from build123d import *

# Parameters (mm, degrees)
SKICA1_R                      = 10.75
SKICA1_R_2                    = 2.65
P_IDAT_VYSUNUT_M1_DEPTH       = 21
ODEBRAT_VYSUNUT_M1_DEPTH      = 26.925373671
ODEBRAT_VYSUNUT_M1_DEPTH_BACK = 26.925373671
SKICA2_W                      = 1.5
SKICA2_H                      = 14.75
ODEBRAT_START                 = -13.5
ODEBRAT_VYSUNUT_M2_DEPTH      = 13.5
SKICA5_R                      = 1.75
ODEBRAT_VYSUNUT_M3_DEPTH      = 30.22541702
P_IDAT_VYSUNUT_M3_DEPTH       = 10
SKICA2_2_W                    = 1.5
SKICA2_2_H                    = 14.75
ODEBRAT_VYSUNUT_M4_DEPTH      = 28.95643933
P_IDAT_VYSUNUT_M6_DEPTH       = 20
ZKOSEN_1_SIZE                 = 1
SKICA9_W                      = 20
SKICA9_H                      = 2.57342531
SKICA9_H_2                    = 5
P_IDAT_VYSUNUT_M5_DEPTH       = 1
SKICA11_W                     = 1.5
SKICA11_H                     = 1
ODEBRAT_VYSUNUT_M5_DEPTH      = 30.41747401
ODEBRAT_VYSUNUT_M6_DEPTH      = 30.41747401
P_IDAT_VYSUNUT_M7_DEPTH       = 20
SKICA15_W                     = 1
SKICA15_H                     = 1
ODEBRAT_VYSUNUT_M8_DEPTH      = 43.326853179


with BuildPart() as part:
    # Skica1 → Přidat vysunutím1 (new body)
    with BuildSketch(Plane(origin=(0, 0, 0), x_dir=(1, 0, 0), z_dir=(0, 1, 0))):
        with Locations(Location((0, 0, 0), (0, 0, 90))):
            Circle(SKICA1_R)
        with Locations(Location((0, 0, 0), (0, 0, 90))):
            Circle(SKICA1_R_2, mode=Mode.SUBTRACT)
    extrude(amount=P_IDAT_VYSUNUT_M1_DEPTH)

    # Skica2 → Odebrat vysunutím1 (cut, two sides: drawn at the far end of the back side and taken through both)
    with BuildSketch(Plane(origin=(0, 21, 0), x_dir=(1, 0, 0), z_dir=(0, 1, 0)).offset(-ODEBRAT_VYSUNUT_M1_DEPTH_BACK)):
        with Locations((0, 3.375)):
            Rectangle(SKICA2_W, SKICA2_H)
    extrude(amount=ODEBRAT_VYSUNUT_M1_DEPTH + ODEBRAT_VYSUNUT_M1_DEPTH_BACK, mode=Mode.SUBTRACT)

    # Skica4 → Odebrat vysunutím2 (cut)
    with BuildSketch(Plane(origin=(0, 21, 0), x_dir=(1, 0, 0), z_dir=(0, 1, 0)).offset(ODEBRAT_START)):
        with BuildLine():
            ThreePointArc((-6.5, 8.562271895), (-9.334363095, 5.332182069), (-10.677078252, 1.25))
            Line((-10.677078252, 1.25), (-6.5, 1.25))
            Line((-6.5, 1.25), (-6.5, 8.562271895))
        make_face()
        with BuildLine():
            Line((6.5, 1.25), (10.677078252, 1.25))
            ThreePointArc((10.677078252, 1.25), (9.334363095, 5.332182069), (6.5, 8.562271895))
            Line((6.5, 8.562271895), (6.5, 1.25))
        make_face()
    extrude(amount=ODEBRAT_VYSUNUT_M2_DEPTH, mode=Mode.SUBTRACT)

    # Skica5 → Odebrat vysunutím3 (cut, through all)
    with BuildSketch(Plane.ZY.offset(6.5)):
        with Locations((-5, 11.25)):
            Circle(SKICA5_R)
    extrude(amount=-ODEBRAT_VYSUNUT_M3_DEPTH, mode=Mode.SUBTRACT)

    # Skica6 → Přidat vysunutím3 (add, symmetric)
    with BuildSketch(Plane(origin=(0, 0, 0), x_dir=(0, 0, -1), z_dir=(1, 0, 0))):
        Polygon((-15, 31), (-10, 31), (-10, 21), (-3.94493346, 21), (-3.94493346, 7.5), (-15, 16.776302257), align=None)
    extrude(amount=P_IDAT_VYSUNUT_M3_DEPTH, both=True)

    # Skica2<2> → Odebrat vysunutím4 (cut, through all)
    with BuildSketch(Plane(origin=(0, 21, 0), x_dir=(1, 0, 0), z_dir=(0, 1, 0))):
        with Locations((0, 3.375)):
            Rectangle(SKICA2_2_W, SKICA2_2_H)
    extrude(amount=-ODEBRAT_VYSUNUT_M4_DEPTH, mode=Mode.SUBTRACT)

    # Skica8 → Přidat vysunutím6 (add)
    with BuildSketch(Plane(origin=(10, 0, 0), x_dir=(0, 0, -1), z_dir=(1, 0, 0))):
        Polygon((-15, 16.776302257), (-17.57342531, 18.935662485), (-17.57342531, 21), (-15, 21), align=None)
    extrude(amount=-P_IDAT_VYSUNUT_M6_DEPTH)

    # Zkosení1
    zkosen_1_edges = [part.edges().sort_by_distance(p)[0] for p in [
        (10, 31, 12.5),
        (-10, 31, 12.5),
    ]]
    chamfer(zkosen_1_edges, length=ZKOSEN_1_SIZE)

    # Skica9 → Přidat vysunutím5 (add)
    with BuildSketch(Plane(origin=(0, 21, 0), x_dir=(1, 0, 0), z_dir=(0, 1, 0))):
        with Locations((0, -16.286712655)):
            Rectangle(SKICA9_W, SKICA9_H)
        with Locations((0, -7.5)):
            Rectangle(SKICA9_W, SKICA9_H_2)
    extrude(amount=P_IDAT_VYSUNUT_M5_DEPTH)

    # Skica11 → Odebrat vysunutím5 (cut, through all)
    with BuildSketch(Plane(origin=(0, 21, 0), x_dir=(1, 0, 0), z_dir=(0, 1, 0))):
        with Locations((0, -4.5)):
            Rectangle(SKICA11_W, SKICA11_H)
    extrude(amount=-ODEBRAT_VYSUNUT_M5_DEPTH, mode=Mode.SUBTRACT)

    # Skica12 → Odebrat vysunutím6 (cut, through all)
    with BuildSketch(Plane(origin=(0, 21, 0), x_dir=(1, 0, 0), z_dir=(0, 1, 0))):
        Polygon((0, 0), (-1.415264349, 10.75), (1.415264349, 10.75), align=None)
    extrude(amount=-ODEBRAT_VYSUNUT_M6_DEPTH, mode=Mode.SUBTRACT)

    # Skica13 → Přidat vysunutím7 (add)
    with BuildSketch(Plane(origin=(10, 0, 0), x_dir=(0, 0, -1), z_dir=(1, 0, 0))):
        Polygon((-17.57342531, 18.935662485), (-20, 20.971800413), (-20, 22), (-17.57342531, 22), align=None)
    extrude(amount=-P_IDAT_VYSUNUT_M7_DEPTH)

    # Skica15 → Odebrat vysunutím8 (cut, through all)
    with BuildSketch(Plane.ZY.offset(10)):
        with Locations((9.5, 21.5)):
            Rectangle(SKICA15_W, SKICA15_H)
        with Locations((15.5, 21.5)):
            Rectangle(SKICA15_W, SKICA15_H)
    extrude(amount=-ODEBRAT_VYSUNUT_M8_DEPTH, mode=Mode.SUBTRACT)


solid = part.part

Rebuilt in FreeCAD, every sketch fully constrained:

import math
import FreeCAD as App
import Part
import Sketcher
from FreeCAD import Vector
Q = App.Units.Quantity


def edges_at(feature, points):
    """Names of the edges that pass closest to the given points."""
    edges = feature.Shape.Edges
    near = lambda p: min(range(len(edges)), key=lambda i: edges[i].distToShape(Part.Vertex(*p))[0])
    return sorted({f"Edge{near(p) + 1}" for p in points})

doc = App.newDocument("Part")
body = doc.addObject("PartDesign::Body", "Body")

sketch1 = body.newObject("Sketcher::SketchObject", "Sketch")
sketch1.AttachmentSupport = (doc.getObject("XZ_Plane"), [""])
sketch1.MapMode = "FlatFace"
sketch1.addGeometry(Part.Circle(Vector(0, 0, 0), Vector(0, 0, 1), 10.75), False)
sketch1.addGeometry(Part.Circle(Vector(0, 0, 0), Vector(0, 0, 1), 2.65), False)
sketch1.addConstraint(Sketcher.Constraint("Coincident", 0, 3, -1, 1))
sketch1.addConstraint(Sketcher.Constraint("Coincident", 1, 3, -1, 1))
sketch1.addConstraint(Sketcher.Constraint("Diameter", 0, Q("21.5 mm")))
sketch1.addConstraint(Sketcher.Constraint("Diameter", 1, Q("5.3 mm")))
pad1 = body.newObject("PartDesign::Pad", "Pad")
pad1.Profile = sketch1
pad1.Length = 21
pad1.Reversed = True

sketch2 = body.newObject("Sketcher::SketchObject", "Sketch001")
sketch2.AttachmentSupport = (doc.getObject("XZ_Plane"), [""])
sketch2.MapMode = "FlatFace"
sketch2.AttachmentOffset = App.Placement(Vector(0, 0, -21), App.Rotation())
sketch2.addGeometry(Part.LineSegment(Vector(-0.75, -10.75, 0), Vector(-0.75, 4, 0)), False)
sketch2.addGeometry(Part.LineSegment(Vector(-0.75, 4, 0), Vector(0.75, 4, 0)), False)
sketch2.addGeometry(Part.LineSegment(Vector(0.75, 4, 0), Vector(0.75, -10.75, 0)), False)
sketch2.addGeometry(Part.LineSegment(Vector(0.75, -10.75, 0), Vector(-0.75, -10.75, 0)), False)
sketch2.addConstraint(Sketcher.Constraint("Coincident", 0, 2, 1, 1))
sketch2.addConstraint(Sketcher.Constraint("Coincident", 1, 2, 2, 1))
sketch2.addConstraint(Sketcher.Constraint("Coincident", 2, 2, 3, 1))
sketch2.addConstraint(Sketcher.Constraint("Coincident", 3, 2, 0, 1))
sketch2.addConstraint(Sketcher.Constraint("Vertical", 0))
sketch2.addConstraint(Sketcher.Constraint("Horizontal", 1))
sketch2.addConstraint(Sketcher.Constraint("Vertical", 2))
sketch2.addConstraint(Sketcher.Constraint("Horizontal", 3))
sketch2.addConstraint(Sketcher.Constraint("DistanceX", 1, 1, 1, 2, Q("1.5 mm")))
sketch2.addConstraint(Sketcher.Constraint("DistanceY", -1, 1, 0, 2, Q("4 mm")))
sketch2.addConstraint(Sketcher.Constraint("DistanceY", 0, 1, 0, 2, Q("14.75 mm")))
sketch2.addConstraint(Sketcher.Constraint("DistanceX", 0, 2, -1, 1, Q("0.75 mm")))
pocket1 = body.newObject("PartDesign::Pocket", "Pocket")
pocket1.Profile = sketch2
pocket1.Type = "ThroughAll"
pocket1.Midplane = True

sketch3 = body.newObject("Sketcher::SketchObject", "Sketch002")
sketch3.AttachmentSupport = (doc.getObject("XZ_Plane"), [""])
sketch3.MapMode = "FlatFace"
sketch3.AttachmentOffset = App.Placement(Vector(0, 0, -7.5), App.Rotation())
sketch3.addGeometry(Part.ArcOfCircle(Part.Circle(Vector(0, 0, 0), Vector(0, 0, 1), 10.75), math.radians(-173.322595), math.radians(-127.203744)), False)
sketch3.addGeometry(Part.LineSegment(Vector(-10.677078, -1.25, 0), Vector(-6.5, -1.25, 0)), False)
sketch3.addGeometry(Part.LineSegment(Vector(-6.5, -1.25, 0), Vector(-6.5, -8.562272, 0)), False)
sketch3.addGeometry(Part.LineSegment(Vector(6.5, -1.25, 0), Vector(10.677078, -1.25, 0)), False)
sketch3.addGeometry(Part.ArcOfCircle(Part.Circle(Vector(0, 0, 0), Vector(0, 0, 1), 10.75), math.radians(-52.796256), math.radians(-6.677405)), False)
sketch3.addGeometry(Part.LineSegment(Vector(6.5, -8.562272, 0), Vector(6.5, -1.25, 0)), False)
sketch3.addConstraint(Sketcher.Constraint("Coincident", 0, 1, 1, 1))
sketch3.addConstraint(Sketcher.Constraint("Coincident", 1, 2, 2, 1))
sketch3.addConstraint(Sketcher.Constraint("Coincident", 2, 2, 0, 2))
sketch3.addConstraint(Sketcher.Constraint("Coincident", 3, 2, 4, 2))
sketch3.addConstraint(Sketcher.Constraint("Coincident", 4, 1, 5, 1))
sketch3.addConstraint(Sketcher.Constraint("Coincident", 5, 2, 3, 1))
sketch3.addConstraint(Sketcher.Constraint("Horizontal", 1))
sketch3.addConstraint(Sketcher.Constraint("Vertical", 2))
sketch3.addConstraint(Sketcher.Constraint("Horizontal", 3))
sketch3.addConstraint(Sketcher.Constraint("Vertical", 5))
sketch3.addConstraint(Sketcher.Constraint("Coincident", 0, 3, -1, 1))
sketch3.addConstraint(Sketcher.Constraint("Coincident", 4, 3, -1, 1))
sketch3.addConstraint(Sketcher.Constraint("Equal", 0, 4))
sketch3.addConstraint(Sketcher.Constraint("Symmetric", 1, 2, 5, 2, -2))
sketch3.addConstraint(Sketcher.Constraint("Radius", 0, Q("10.75 mm")))
sketch3.addConstraint(Sketcher.Constraint("DistanceX", 2, 2, 4, 1, Q("13 mm")))
sketch3.addConstraint(Sketcher.Constraint("DistanceY", 0, 1, -1, 1, Q("1.25 mm")))
pocket2 = body.newObject("PartDesign::Pocket", "Pocket001")
pocket2.Profile = sketch3
pocket2.Length = 13.5

sketch4 = body.newObject("Sketcher::SketchObject", "Sketch003")
sketch4.AttachmentSupport = (doc.getObject("YZ_Plane"), [""])
sketch4.MapMode = "FlatFace"
sketch4.AttachmentOffset = App.Placement(Vector(0, 0, -6.5), App.Rotation())
sketch4.addGeometry(Part.Circle(Vector(11.25, -5, 0), Vector(0, 0, 1), 1.75), False)
sketch4.addConstraint(Sketcher.Constraint("Diameter", 0, Q("3.5 mm")))
sketch4.addConstraint(Sketcher.Constraint("DistanceY", 0, 3, -1, 1, Q("5 mm")))
sketch4.addConstraint(Sketcher.Constraint("DistanceX", -1, 1, 0, 3, Q("11.25 mm")))
pocket3 = body.newObject("PartDesign::Pocket", "Pocket002")
pocket3.Profile = sketch4
pocket3.Type = "ThroughAll"
pocket3.Reversed = True

sketch5 = body.newObject("Sketcher::SketchObject", "Sketch004")
sketch5.AttachmentSupport = (doc.getObject("YZ_Plane"), [""])
sketch5.MapMode = "FlatFace"
sketch5.addGeometry(Part.LineSegment(Vector(31, 10, 0), Vector(31, 15, 0)), False)
sketch5.addGeometry(Part.LineSegment(Vector(31, 15, 0), Vector(16.776302, 15, 0)), False)
sketch5.addGeometry(Part.LineSegment(Vector(16.776302, 15, 0), Vector(7.5, 3.944933, 0)), False)
sketch5.addGeometry(Part.LineSegment(Vector(7.5, 3.944933, 0), Vector(21, 3.944933, 0)), False)
sketch5.addGeometry(Part.LineSegment(Vector(21, 3.944933, 0), Vector(21, 10, 0)), False)
sketch5.addGeometry(Part.LineSegment(Vector(21, 10, 0), Vector(31, 10, 0)), False)
sketch5.addConstraint(Sketcher.Constraint("Coincident", 0, 2, 1, 1))
sketch5.addConstraint(Sketcher.Constraint("Coincident", 1, 2, 2, 1))
sketch5.addConstraint(Sketcher.Constraint("Coincident", 2, 2, 3, 1))
sketch5.addConstraint(Sketcher.Constraint("Coincident", 3, 2, 4, 1))
sketch5.addConstraint(Sketcher.Constraint("Coincident", 4, 2, 5, 1))
sketch5.addConstraint(Sketcher.Constraint("Coincident", 5, 2, 0, 1))
sketch5.addConstraint(Sketcher.Constraint("Vertical", 0))
sketch5.addConstraint(Sketcher.Constraint("Horizontal", 1))
sketch5.addConstraint(Sketcher.Constraint("Horizontal", 3))
sketch5.addConstraint(Sketcher.Constraint("Vertical", 4))
sketch5.addConstraint(Sketcher.Constraint("Horizontal", 5))
sketch5.addConstraint(Sketcher.Constraint("DistanceX", 5, 1, 5, 2, Q("10 mm")))
sketch5.addConstraint(Sketcher.Constraint("DistanceY", 0, 1, 0, 2, Q("5 mm")))
sketch5.addConstraint(Sketcher.Constraint("Angle", 2, Q("-130 deg")))
sketch5.addConstraint(Sketcher.Constraint("DistanceX", 3, 1, 3, 2, Q("13.5 mm")))
sketch5.addConstraint(Sketcher.Constraint("DistanceX", -1, 1, 0, 2, Q("31 mm")))
sketch5.addConstraint(Sketcher.Constraint("DistanceY", -1, 1, 0, 2, Q("15 mm")))
sketch5.addConstraint(Sketcher.Constraint("DistanceX", 1, 2, 1, 1, Q("14.223698 mm")))
pad2 = body.newObject("PartDesign::Pad", "Pad001")
pad2.Profile = sketch5
pad2.Length = 20
pad2.Midplane = True

sketch6 = body.newObject("Sketcher::SketchObject", "Sketch005")
sketch6.AttachmentSupport = (doc.getObject("XZ_Plane"), [""])
sketch6.MapMode = "FlatFace"
sketch6.AttachmentOffset = App.Placement(Vector(0, 0, -21), App.Rotation())
sketch6.addGeometry(Part.LineSegment(Vector(-0.75, -10.75, 0), Vector(-0.75, 4, 0)), False)
sketch6.addGeometry(Part.LineSegment(Vector(-0.75, 4, 0), Vector(0.75, 4, 0)), False)
sketch6.addGeometry(Part.LineSegment(Vector(0.75, 4, 0), Vector(0.75, -10.75, 0)), False)
sketch6.addGeometry(Part.LineSegment(Vector(0.75, -10.75, 0), Vector(-0.75, -10.75, 0)), False)
sketch6.addConstraint(Sketcher.Constraint("Coincident", 0, 2, 1, 1))
sketch6.addConstraint(Sketcher.Constraint("Coincident", 1, 2, 2, 1))
sketch6.addConstraint(Sketcher.Constraint("Coincident", 2, 2, 3, 1))
sketch6.addConstraint(Sketcher.Constraint("Coincident", 3, 2, 0, 1))
sketch6.addConstraint(Sketcher.Constraint("Vertical", 0))
sketch6.addConstraint(Sketcher.Constraint("Horizontal", 1))
sketch6.addConstraint(Sketcher.Constraint("Vertical", 2))
sketch6.addConstraint(Sketcher.Constraint("Horizontal", 3))
sketch6.addConstraint(Sketcher.Constraint("DistanceX", 1, 1, 1, 2, Q("1.5 mm")))
sketch6.addConstraint(Sketcher.Constraint("DistanceY", -1, 1, 0, 2, Q("4 mm")))
sketch6.addConstraint(Sketcher.Constraint("DistanceY", 0, 1, 0, 2, Q("14.75 mm")))
sketch6.addConstraint(Sketcher.Constraint("DistanceX", 0, 2, -1, 1, Q("0.75 mm")))
pocket4 = body.newObject("PartDesign::Pocket", "Pocket003")
pocket4.Profile = sketch6
pocket4.Type = "ThroughAll"
pocket4.Reversed = True

sketch7 = body.newObject("Sketcher::SketchObject", "Sketch006")
sketch7.AttachmentSupport = (doc.getObject("YZ_Plane"), [""])
sketch7.MapMode = "FlatFace"
sketch7.AttachmentOffset = App.Placement(Vector(0, 0, 10), App.Rotation())
sketch7.addGeometry(Part.LineSegment(Vector(18.935662, 17.573425, 0), Vector(16.776302, 15, 0)), False)
sketch7.addGeometry(Part.LineSegment(Vector(16.776302, 15, 0), Vector(21, 15, 0)), False)
sketch7.addGeometry(Part.LineSegment(Vector(21, 15, 0), Vector(21, 17.573425, 0)), False)
sketch7.addGeometry(Part.LineSegment(Vector(21, 17.573425, 0), Vector(18.935662, 17.573425, 0)), False)
sketch7.addConstraint(Sketcher.Constraint("Coincident", 0, 2, 1, 1))
sketch7.addConstraint(Sketcher.Constraint("Coincident", 1, 2, 2, 1))
sketch7.addConstraint(Sketcher.Constraint("Coincident", 2, 2, 3, 1))
sketch7.addConstraint(Sketcher.Constraint("Coincident", 3, 2, 0, 1))
sketch7.addConstraint(Sketcher.Constraint("Horizontal", 1))
sketch7.addConstraint(Sketcher.Constraint("Vertical", 2))
sketch7.addConstraint(Sketcher.Constraint("Horizontal", 3))
sketch7.addConstraint(Sketcher.Constraint("Angle", 0, Q("-130 deg")))
sketch7.addConstraint(Sketcher.Constraint("DistanceY", -1, 1, 0, 2, Q("15 mm")))
sketch7.addConstraint(Sketcher.Constraint("DistanceX", -1, 1, 1, 2, Q("21 mm")))
sketch7.addConstraint(Sketcher.Constraint("Distance", 0, Q("3.359368 mm")))
sketch7.addConstraint(Sketcher.Constraint("DistanceX", 1, 1, 1, 2, Q("4.223698 mm")))
pad3 = body.newObject("PartDesign::Pad", "Pad002")
pad3.Profile = sketch7
pad3.Length = 20
pad3.Reversed = True
doc.recompute()

chamfer = body.newObject("PartDesign::Chamfer", "Chamfer")
chamfer.Base = (pad3, edges_at(pad3, [(10, 31, 12.5), (-10, 31, 12.5)]))
chamfer.Size = 1

sketch8 = body.newObject("Sketcher::SketchObject", "Sketch007")
sketch8.AttachmentSupport = (doc.getObject("XZ_Plane"), [""])
sketch8.MapMode = "FlatFace"
sketch8.AttachmentOffset = App.Placement(Vector(0, 0, -21), App.Rotation())
sketch8.addGeometry(Part.LineSegment(Vector(-10, 15, 0), Vector(-10, 17.573425, 0)), False)
sketch8.addGeometry(Part.LineSegment(Vector(-10, 17.573425, 0), Vector(10, 17.573425, 0)), False)
sketch8.addGeometry(Part.LineSegment(Vector(10, 17.573425, 0), Vector(10, 15, 0)), False)
sketch8.addGeometry(Part.LineSegment(Vector(10, 15, 0), Vector(-10, 15, 0)), False)
sketch8.addGeometry(Part.LineSegment(Vector(-10, 5, 0), Vector(-10, 10, 0)), False)
sketch8.addGeometry(Part.LineSegment(Vector(-10, 10, 0), Vector(10, 10, 0)), False)
sketch8.addGeometry(Part.LineSegment(Vector(10, 10, 0), Vector(10, 5, 0)), False)
sketch8.addGeometry(Part.LineSegment(Vector(10, 5, 0), Vector(-10, 5, 0)), False)
sketch8.addConstraint(Sketcher.Constraint("Coincident", 0, 2, 1, 1))
sketch8.addConstraint(Sketcher.Constraint("Coincident", 1, 2, 2, 1))
sketch8.addConstraint(Sketcher.Constraint("Coincident", 2, 2, 3, 1))
sketch8.addConstraint(Sketcher.Constraint("Coincident", 3, 2, 0, 1))
sketch8.addConstraint(Sketcher.Constraint("Coincident", 4, 2, 5, 1))
sketch8.addConstraint(Sketcher.Constraint("Coincident", 5, 2, 6, 1))
sketch8.addConstraint(Sketcher.Constraint("Coincident", 6, 2, 7, 1))
sketch8.addConstraint(Sketcher.Constraint("Coincident", 7, 2, 4, 1))
sketch8.addConstraint(Sketcher.Constraint("Vertical", 0))
sketch8.addConstraint(Sketcher.Constraint("Horizontal", 1))
sketch8.addConstraint(Sketcher.Constraint("Vertical", 2))
sketch8.addConstraint(Sketcher.Constraint("Horizontal", 3))
sketch8.addConstraint(Sketcher.Constraint("Vertical", 4))
sketch8.addConstraint(Sketcher.Constraint("Horizontal", 5))
sketch8.addConstraint(Sketcher.Constraint("Vertical", 6))
sketch8.addConstraint(Sketcher.Constraint("Horizontal", 7))
sketch8.addConstraint(Sketcher.Constraint("Vertical", 3, 2, 4, 2))
sketch8.addConstraint(Sketcher.Constraint("Vertical", 2, 2, 5, 2))
sketch8.addConstraint(Sketcher.Constraint("DistanceX", 1, 1, 1, 2, Q("20 mm")))
sketch8.addConstraint(Sketcher.Constraint("DistanceY", 4, 1, 4, 2, Q("5 mm")))
sketch8.addConstraint(Sketcher.Constraint("DistanceX", 0, 2, -1, 1, Q("10 mm")))
sketch8.addConstraint(Sketcher.Constraint("DistanceY", -1, 1, 2, 2, Q("15 mm")))
sketch8.addConstraint(Sketcher.Constraint("DistanceY", -1, 1, 4, 2, Q("10 mm")))
sketch8.addConstraint(Sketcher.Constraint("DistanceY", 0, 1, 0, 2, Q("2.573425 mm")))
pad4 = body.newObject("PartDesign::Pad", "Pad003")
pad4.Profile = sketch8
pad4.Length = 1
pad4.Reversed = True

sketch9 = body.newObject("Sketcher::SketchObject", "Sketch008")
sketch9.AttachmentSupport = (doc.getObject("XZ_Plane"), [""])
sketch9.MapMode = "FlatFace"
sketch9.AttachmentOffset = App.Placement(Vector(0, 0, -21), App.Rotation())
sketch9.addGeometry(Part.LineSegment(Vector(-0.75, 4, 0), Vector(-0.75, 5, 0)), False)
sketch9.addGeometry(Part.LineSegment(Vector(-0.75, 5, 0), Vector(0.75, 5, 0)), False)
sketch9.addGeometry(Part.LineSegment(Vector(0.75, 5, 0), Vector(0.75, 4, 0)), False)
sketch9.addGeometry(Part.LineSegment(Vector(0.75, 4, 0), Vector(-0.75, 4, 0)), False)
sketch9.addConstraint(Sketcher.Constraint("Coincident", 0, 2, 1, 1))
sketch9.addConstraint(Sketcher.Constraint("Coincident", 1, 2, 2, 1))
sketch9.addConstraint(Sketcher.Constraint("Coincident", 2, 2, 3, 1))
sketch9.addConstraint(Sketcher.Constraint("Coincident", 3, 2, 0, 1))
sketch9.addConstraint(Sketcher.Constraint("Vertical", 0))
sketch9.addConstraint(Sketcher.Constraint("Horizontal", 1))
sketch9.addConstraint(Sketcher.Constraint("Vertical", 2))
sketch9.addConstraint(Sketcher.Constraint("Horizontal", 3))
sketch9.addConstraint(Sketcher.Constraint("DistanceY", 0, 1, 0, 2, Q("1 mm")))
sketch9.addConstraint(Sketcher.Constraint("DistanceX", 1, 1, 1, 2, Q("1.5 mm")))
sketch9.addConstraint(Sketcher.Constraint("DistanceY", -1, 1, 0, 2, Q("5 mm")))
sketch9.addConstraint(Sketcher.Constraint("DistanceX", 0, 2, -1, 1, Q("0.75 mm")))
pocket5 = body.newObject("PartDesign::Pocket", "Pocket004")
pocket5.Profile = sketch9
pocket5.Type = "ThroughAll"
pocket5.Reversed = True

sketch10 = body.newObject("Sketcher::SketchObject", "Sketch009")
sketch10.AttachmentSupport = (doc.getObject("XZ_Plane"), [""])
sketch10.MapMode = "FlatFace"
sketch10.AttachmentOffset = App.Placement(Vector(0, 0, -21), App.Rotation())
sketch10.addGeometry(Part.LineSegment(Vector(-1.415264, -10.75, 0), Vector(0, 0, 0)), False)
sketch10.addGeometry(Part.LineSegment(Vector(0, 0, 0), Vector(1.415264, -10.75, 0)), False)
sketch10.addGeometry(Part.LineSegment(Vector(1.415264, -10.75, 0), Vector(-1.415264, -10.75, 0)), False)
sketch10.addConstraint(Sketcher.Constraint("Coincident", 0, 2, 1, 1))
sketch10.addConstraint(Sketcher.Constraint("Coincident", 1, 2, 2, 1))
sketch10.addConstraint(Sketcher.Constraint("Coincident", 2, 2, 0, 1))
sketch10.addConstraint(Sketcher.Constraint("Horizontal", 2))
sketch10.addConstraint(Sketcher.Constraint("Coincident", 0, 2, -1, 1))
sketch10.addConstraint(Sketcher.Constraint("Equal", 0, 1))
sketch10.addConstraint(Sketcher.Constraint("Angle", 0, Q("82.5 deg")))
sketch10.addConstraint(Sketcher.Constraint("DistanceY", 1, 2, -1, 1, Q("10.75 mm")))
pocket6 = body.newObject("PartDesign::Pocket", "Pocket005")
pocket6.Profile = sketch10
pocket6.Type = "ThroughAll"
pocket6.Reversed = True

sketch11 = body.newObject("Sketcher::SketchObject", "Sketch010")
sketch11.AttachmentSupport = (doc.getObject("YZ_Plane"), [""])
sketch11.MapMode = "FlatFace"
sketch11.AttachmentOffset = App.Placement(Vector(0, 0, 10), App.Rotation())
sketch11.addGeometry(Part.LineSegment(Vector(20.9718, 20, 0), Vector(18.935662, 17.573425, 0)), False)
sketch11.addGeometry(Part.LineSegment(Vector(18.935662, 17.573425, 0), Vector(22, 17.573425, 0)), False)
sketch11.addGeometry(Part.LineSegment(Vector(22, 17.573425, 0), Vector(22, 20, 0)), False)
sketch11.addGeometry(Part.LineSegment(Vector(22, 20, 0), Vector(20.9718, 20, 0)), False)
sketch11.addConstraint(Sketcher.Constraint("Coincident", 0, 2, 1, 1))
sketch11.addConstraint(Sketcher.Constraint("Coincident", 1, 2, 2, 1))
sketch11.addConstraint(Sketcher.Constraint("Coincident", 2, 2, 3, 1))
sketch11.addConstraint(Sketcher.Constraint("Coincident", 3, 2, 0, 1))
sketch11.addConstraint(Sketcher.Constraint("Horizontal", 1))
sketch11.addConstraint(Sketcher.Constraint("Vertical", 2))
sketch11.addConstraint(Sketcher.Constraint("Horizontal", 3))
sketch11.addConstraint(Sketcher.Constraint("Angle", 0, Q("-130 deg")))
sketch11.addConstraint(Sketcher.Constraint("DistanceX", -1, 1, 1, 2, Q("22 mm")))
sketch11.addConstraint(Sketcher.Constraint("DistanceY", -1, 1, 2, 2, Q("20 mm")))
sketch11.addConstraint(Sketcher.Constraint("DistanceX", 3, 2, 3, 1, Q("1.0282 mm")))
sketch11.addConstraint(Sketcher.Constraint("Distance", 0, Q("3.167668 mm")))
pad5 = body.newObject("PartDesign::Pad", "Pad004")
pad5.Profile = sketch11
pad5.Length = 20
pad5.Reversed = True

sketch12 = body.newObject("Sketcher::SketchObject", "Sketch011")
sketch12.AttachmentSupport = (doc.getObject("YZ_Plane"), [""])
sketch12.MapMode = "FlatFace"
sketch12.AttachmentOffset = App.Placement(Vector(0, 0, -10), App.Rotation())
sketch12.addGeometry(Part.LineSegment(Vector(22, 9, 0), Vector(21, 9, 0)), False)
sketch12.addGeometry(Part.LineSegment(Vector(21, 9, 0), Vector(21, 10, 0)), False)
sketch12.addGeometry(Part.LineSegment(Vector(21, 10, 0), Vector(22, 10, 0)), False)
sketch12.addGeometry(Part.LineSegment(Vector(22, 10, 0), Vector(22, 9, 0)), False)
sketch12.addGeometry(Part.LineSegment(Vector(22, 15, 0), Vector(21, 15, 0)), False)
sketch12.addGeometry(Part.LineSegment(Vector(21, 15, 0), Vector(21, 16, 0)), False)
sketch12.addGeometry(Part.LineSegment(Vector(21, 16, 0), Vector(22, 16, 0)), False)
sketch12.addGeometry(Part.LineSegment(Vector(22, 16, 0), Vector(22, 15, 0)), False)
sketch12.addConstraint(Sketcher.Constraint("Coincident", 0, 2, 1, 1))
sketch12.addConstraint(Sketcher.Constraint("Coincident", 1, 2, 2, 1))
sketch12.addConstraint(Sketcher.Constraint("Coincident", 2, 2, 3, 1))
sketch12.addConstraint(Sketcher.Constraint("Coincident", 3, 2, 0, 1))
sketch12.addConstraint(Sketcher.Constraint("Coincident", 4, 2, 5, 1))
sketch12.addConstraint(Sketcher.Constraint("Coincident", 5, 2, 6, 1))
sketch12.addConstraint(Sketcher.Constraint("Coincident", 6, 2, 7, 1))
sketch12.addConstraint(Sketcher.Constraint("Coincident", 7, 2, 4, 1))
sketch12.addConstraint(Sketcher.Constraint("Horizontal", 0))
sketch12.addConstraint(Sketcher.Constraint("Vertical", 1))
sketch12.addConstraint(Sketcher.Constraint("Horizontal", 2))
sketch12.addConstraint(Sketcher.Constraint("Vertical", 3))
sketch12.addConstraint(Sketcher.Constraint("Horizontal", 4))
sketch12.addConstraint(Sketcher.Constraint("Vertical", 5))
sketch12.addConstraint(Sketcher.Constraint("Horizontal", 6))
sketch12.addConstraint(Sketcher.Constraint("Vertical", 7))
sketch12.addConstraint(Sketcher.Constraint("Vertical", 1, 2, 4, 2))
sketch12.addConstraint(Sketcher.Constraint("Vertical", 3, 2, 6, 2))
sketch12.addConstraint(Sketcher.Constraint("Equal", 6, 1))
sketch12.addConstraint(Sketcher.Constraint("Equal", 3, 5))
sketch12.addConstraint(Sketcher.Constraint("DistanceX", 0, 2, 0, 1, Q("1 mm")))
sketch12.addConstraint(Sketcher.Constraint("DistanceX", -1, 1, 0, 2, Q("21 mm")))
sketch12.addConstraint(Sketcher.Constraint("DistanceY", -1, 1, 0, 2, Q("9 mm")))
sketch12.addConstraint(Sketcher.Constraint("DistanceY", -1, 1, 4, 2, Q("15 mm")))
pocket7 = body.newObject("PartDesign::Pocket", "Pocket006")
pocket7.Profile = sketch12
pocket7.Type = "ThroughAll"
pocket7.Reversed = True

doc.recompute()
